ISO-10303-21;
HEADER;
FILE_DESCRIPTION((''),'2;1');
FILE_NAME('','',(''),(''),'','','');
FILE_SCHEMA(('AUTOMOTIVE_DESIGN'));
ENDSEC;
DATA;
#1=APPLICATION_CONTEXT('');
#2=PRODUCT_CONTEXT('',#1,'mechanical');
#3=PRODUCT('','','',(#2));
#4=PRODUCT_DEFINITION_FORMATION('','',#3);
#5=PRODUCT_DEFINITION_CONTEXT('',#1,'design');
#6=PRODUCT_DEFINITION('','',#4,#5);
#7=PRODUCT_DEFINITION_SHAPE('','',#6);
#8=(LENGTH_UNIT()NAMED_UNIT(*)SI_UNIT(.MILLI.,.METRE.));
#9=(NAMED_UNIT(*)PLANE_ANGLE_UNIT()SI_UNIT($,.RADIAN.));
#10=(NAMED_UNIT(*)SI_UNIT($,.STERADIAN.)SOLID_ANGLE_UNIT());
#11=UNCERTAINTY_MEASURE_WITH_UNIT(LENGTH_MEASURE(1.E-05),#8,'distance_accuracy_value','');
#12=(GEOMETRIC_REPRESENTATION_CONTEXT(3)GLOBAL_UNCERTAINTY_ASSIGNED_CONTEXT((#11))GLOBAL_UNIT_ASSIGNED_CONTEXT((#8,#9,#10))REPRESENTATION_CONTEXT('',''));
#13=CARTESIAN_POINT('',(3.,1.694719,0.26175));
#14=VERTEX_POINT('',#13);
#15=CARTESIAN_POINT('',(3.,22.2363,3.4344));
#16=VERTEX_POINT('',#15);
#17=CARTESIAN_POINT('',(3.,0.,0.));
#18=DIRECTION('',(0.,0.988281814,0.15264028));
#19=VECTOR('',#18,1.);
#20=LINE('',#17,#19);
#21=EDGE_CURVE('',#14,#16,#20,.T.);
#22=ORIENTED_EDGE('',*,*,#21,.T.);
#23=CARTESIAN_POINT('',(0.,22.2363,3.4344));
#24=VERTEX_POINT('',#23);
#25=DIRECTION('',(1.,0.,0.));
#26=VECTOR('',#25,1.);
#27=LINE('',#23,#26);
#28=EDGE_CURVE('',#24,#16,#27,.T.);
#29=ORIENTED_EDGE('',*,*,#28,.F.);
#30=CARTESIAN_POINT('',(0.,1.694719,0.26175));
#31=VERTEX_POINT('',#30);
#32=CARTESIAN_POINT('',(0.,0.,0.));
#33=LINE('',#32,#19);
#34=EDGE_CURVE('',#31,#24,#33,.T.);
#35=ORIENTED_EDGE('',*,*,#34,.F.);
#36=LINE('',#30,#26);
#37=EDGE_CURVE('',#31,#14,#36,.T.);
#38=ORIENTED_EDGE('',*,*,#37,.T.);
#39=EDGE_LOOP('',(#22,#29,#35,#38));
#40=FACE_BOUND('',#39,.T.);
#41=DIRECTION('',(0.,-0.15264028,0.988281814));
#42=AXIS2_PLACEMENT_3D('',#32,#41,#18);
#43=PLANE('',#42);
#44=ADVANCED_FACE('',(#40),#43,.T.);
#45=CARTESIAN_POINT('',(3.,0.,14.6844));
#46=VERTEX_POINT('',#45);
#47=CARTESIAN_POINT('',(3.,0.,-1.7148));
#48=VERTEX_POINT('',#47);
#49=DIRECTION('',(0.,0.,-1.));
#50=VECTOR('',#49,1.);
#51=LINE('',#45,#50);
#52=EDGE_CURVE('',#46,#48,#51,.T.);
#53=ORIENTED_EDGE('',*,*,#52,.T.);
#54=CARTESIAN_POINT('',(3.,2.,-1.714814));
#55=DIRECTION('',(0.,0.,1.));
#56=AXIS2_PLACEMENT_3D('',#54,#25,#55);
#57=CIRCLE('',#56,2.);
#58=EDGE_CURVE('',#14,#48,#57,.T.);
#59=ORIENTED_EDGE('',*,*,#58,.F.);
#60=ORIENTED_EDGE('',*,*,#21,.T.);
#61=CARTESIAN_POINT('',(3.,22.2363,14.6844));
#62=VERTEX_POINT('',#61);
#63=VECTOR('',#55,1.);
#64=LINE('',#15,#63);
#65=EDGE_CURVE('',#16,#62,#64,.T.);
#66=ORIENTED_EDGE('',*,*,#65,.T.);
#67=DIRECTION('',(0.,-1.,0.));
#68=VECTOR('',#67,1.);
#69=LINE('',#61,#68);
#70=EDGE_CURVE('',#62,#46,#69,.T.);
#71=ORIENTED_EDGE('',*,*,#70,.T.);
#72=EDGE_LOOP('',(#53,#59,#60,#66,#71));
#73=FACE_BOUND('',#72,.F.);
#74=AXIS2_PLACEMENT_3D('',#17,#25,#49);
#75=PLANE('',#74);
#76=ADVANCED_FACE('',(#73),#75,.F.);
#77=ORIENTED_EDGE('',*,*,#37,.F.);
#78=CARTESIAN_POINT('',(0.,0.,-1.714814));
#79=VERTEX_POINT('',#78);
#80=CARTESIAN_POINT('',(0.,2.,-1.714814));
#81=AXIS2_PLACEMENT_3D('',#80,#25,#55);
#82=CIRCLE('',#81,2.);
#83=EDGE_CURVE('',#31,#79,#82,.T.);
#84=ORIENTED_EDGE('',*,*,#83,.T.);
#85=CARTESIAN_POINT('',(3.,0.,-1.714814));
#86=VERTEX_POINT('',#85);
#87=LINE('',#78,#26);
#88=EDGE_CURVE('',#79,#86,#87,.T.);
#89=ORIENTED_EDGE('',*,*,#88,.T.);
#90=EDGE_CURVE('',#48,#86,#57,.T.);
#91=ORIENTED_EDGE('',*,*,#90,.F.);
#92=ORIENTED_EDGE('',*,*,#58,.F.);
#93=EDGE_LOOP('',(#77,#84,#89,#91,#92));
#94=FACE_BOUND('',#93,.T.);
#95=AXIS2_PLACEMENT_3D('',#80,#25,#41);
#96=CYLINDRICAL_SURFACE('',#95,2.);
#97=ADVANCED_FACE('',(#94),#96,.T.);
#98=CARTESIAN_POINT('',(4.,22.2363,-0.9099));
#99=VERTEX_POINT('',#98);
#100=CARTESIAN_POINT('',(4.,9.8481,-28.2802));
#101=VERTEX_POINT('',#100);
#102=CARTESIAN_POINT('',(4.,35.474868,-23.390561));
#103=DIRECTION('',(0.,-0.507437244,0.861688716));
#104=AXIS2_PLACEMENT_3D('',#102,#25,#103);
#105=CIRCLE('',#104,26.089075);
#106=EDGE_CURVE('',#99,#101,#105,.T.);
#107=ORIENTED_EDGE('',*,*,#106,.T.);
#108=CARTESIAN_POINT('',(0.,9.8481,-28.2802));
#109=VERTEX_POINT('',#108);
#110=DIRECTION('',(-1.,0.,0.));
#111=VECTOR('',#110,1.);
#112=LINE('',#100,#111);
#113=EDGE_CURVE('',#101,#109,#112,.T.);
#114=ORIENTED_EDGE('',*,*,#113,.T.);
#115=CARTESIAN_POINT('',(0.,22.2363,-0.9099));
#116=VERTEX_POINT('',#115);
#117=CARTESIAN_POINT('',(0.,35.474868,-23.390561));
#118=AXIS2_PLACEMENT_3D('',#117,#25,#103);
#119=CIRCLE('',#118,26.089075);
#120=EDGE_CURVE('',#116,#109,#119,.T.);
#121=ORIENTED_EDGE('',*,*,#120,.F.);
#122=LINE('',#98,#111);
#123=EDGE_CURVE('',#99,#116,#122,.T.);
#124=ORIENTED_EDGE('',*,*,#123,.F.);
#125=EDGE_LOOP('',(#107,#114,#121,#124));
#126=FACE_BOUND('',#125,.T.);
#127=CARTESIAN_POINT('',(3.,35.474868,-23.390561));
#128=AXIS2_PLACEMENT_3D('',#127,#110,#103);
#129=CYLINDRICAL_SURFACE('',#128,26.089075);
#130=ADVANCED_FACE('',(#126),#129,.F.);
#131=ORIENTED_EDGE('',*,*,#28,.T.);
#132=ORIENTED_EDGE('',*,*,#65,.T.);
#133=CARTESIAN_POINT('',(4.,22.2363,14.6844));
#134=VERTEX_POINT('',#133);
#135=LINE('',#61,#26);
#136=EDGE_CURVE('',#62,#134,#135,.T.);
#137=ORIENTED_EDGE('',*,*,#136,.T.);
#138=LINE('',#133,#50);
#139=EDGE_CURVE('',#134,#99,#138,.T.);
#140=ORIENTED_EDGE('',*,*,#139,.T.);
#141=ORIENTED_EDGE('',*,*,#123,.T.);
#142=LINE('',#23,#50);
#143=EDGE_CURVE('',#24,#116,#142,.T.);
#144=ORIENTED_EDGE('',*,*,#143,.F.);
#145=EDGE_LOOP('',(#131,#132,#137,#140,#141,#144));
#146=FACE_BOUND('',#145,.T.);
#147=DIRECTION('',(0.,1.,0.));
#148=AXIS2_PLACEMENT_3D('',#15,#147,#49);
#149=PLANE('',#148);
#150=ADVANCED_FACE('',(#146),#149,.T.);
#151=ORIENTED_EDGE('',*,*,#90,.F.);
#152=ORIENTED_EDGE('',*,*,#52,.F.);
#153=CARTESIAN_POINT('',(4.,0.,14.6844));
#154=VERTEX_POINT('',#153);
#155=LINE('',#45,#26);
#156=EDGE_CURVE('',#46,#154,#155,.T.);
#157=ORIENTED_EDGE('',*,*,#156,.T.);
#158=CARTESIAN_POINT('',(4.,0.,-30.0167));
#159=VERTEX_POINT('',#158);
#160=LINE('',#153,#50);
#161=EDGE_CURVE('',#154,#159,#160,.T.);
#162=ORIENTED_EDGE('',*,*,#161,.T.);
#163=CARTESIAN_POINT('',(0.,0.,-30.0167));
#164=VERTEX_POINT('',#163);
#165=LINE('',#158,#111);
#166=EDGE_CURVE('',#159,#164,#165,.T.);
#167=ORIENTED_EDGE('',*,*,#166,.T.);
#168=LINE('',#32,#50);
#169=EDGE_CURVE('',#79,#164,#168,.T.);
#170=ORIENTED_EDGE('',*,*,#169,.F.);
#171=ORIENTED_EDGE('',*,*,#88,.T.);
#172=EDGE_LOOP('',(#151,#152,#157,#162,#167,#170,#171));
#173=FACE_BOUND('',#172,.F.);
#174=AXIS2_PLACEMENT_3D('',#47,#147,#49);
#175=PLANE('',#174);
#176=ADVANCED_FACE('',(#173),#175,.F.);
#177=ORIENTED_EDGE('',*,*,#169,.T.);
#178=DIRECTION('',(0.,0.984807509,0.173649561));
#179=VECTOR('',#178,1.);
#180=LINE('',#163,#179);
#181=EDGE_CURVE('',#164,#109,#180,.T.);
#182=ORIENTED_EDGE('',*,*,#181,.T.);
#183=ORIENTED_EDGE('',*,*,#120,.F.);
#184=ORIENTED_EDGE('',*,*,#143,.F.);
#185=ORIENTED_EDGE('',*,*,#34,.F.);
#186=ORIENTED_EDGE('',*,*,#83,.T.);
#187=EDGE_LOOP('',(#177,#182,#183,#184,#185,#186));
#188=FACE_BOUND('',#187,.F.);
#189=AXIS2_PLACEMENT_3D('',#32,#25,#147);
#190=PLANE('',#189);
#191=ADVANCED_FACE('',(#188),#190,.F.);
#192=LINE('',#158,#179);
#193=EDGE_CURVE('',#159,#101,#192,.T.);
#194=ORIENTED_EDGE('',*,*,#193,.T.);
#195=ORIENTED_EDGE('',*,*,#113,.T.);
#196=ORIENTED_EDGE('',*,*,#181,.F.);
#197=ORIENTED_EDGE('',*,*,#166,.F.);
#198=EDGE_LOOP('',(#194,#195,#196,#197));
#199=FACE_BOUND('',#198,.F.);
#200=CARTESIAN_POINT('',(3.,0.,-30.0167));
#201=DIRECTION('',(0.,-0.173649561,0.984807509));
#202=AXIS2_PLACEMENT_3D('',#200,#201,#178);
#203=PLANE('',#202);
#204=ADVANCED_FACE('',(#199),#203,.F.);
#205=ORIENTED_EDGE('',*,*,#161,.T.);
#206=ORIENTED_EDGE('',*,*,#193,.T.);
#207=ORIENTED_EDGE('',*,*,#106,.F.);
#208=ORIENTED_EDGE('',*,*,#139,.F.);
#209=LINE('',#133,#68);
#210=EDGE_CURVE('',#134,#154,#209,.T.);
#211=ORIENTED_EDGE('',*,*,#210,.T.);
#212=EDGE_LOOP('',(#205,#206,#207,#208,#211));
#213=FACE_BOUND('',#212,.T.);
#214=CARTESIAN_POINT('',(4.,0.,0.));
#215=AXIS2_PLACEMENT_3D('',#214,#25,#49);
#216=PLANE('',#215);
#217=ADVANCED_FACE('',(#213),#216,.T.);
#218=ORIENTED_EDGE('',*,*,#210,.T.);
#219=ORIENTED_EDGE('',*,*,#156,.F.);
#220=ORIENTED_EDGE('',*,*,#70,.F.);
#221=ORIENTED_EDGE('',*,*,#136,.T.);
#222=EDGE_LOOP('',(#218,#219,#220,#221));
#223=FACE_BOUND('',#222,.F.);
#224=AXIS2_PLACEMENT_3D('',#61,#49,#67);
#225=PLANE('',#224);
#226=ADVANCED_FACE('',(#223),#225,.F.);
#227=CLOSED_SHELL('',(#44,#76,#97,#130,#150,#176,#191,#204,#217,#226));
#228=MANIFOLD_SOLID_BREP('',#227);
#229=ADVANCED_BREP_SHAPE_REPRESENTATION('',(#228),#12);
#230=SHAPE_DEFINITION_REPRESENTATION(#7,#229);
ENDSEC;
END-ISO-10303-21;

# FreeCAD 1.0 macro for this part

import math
import FreeCAD as App
import Part
import Sketcher
from FreeCAD import Vector
Q = App.Units.Quantity


def edges_at(feature, points):
    """Names of the edges that pass closest to the given points."""
    edges = feature.Shape.Edges
    near = lambda p: min(range(len(edges)), key=lambda i: edges[i].distToShape(Part.Vertex(*p))[0])
    return sorted({f"Edge{near(p) + 1}" for p in points})

doc = App.newDocument("Part")
body = doc.addObject("PartDesign::Body", "Body")

# Sketch on YZ plane
sketch1 = body.newObject("Sketcher::SketchObject", "Sketch")
sketch1.AttachmentSupport = (doc.getObject("YZ_Plane"), [""])
sketch1.MapMode = "FlatFace"
sketch1.addGeometry(Part.LineSegment(Vector(22.2363, 3.4344, 0), Vector(0, 0, 0)), False)
sketch1.addGeometry(Part.LineSegment(Vector(0, 0, 0), Vector(0, -30.0167, 0)), False)
sketch1.addGeometry(Part.LineSegment(Vector(0, -30.0167, 0), Vector(9.8481, -28.2802, 0)), False)
sketch1.addGeometry(Part.ArcOfCircle(Part.Circle(Vector(35.4748, -23.3905, 0), Vector(0, 0, 1), 26.088987), math.radians(120.493215), math.radians(190.802471)), False)
sketch1.addGeometry(Part.LineSegment(Vector(22.2363, -0.9099, 0), Vector(22.2363, 3.4344, 0)), False)
sketch1.addConstraint(Sketcher.Constraint("Coincident", 0, 2, 1, 1))
sketch1.addConstraint(Sketcher.Constraint("Coincident", 1, 2, 2, 1))
sketch1.addConstraint(Sketcher.Constraint("Coincident", 2, 2, 3, 2))
sketch1.addConstraint(Sketcher.Constraint("Coincident", 3, 1, 4, 1))
sketch1.addConstraint(Sketcher.Constraint("Coincident", 4, 2, 0, 1))
sketch1.addConstraint(Sketcher.Constraint("Vertical", 1))
sketch1.addConstraint(Sketcher.Constraint("Vertical", 4))
sketch1.addConstraint(Sketcher.Constraint("Coincident", 0, 2, -1, 1))
sketch1.addConstraint(Sketcher.Constraint("Radius", 3, Q("26.089 mm")))
sketch1.addConstraint(Sketcher.Constraint("Distance", 0, Q("22.5 mm")))
sketch1.addConstraint(Sketcher.Constraint("Angle", 2, Q("10 deg")))
sketch1.addConstraint(Sketcher.Constraint("Distance", 2, Q("10 mm")))
sketch1.addConstraint(Sketcher.Constraint("DistanceY", 1, 2, 1, 1, Q("30.0167 mm")))
sketch1.addConstraint(Sketcher.Constraint("Angle", 0, Q("-171.22 deg")))
sketch1.addConstraint(Sketcher.Constraint("DistanceX", 3, 1, 3, 3, Q("13.2385 mm")))
pad1 = body.newObject("PartDesign::Pad", "Pad")
pad1.Profile = sketch1
pad1.Length = 3
doc.recompute()

fillet = body.newObject("PartDesign::Fillet", "Fillet")
fillet.Base = (pad1, edges_at(pad1, [(1.5, 0, 0)]))
fillet.Radius = 2

# Sketch on YZ plane
sketch2 = body.newObject("Sketcher::SketchObject", "Sketch001")
sketch2.AttachmentSupport = (doc.getObject("YZ_Plane"), [""])
sketch2.MapMode = "FlatFace"
sketch2.AttachmentOffset = App.Placement(Vector(0, 0, 3), App.Rotation())
sketch2.addGeometry(Part.LineSegment(Vector(22.2363, -0.9099, 0), Vector(22.2363, 14.6844, 0)), False)
sketch2.addGeometry(Part.LineSegment(Vector(22.2363, 14.6844, 0), Vector(0, 14.6844, 0)), False)
sketch2.addGeometry(Part.LineSegment(Vector(0, 14.6844, 0), Vector(0, -30.0167, 0)), False)
sketch2.addGeometry(Part.LineSegment(Vector(0, -30.0167, 0), Vector(9.8481, -28.2802, 0)), False)
sketch2.addGeometry(Part.ArcOfCircle(Part.Circle(Vector(35.4748, -23.3905, 0), Vector(0, 0, 1), 26.088987), math.radians(120.493215), math.radians(190.802471)), False)
sketch2.addConstraint(Sketcher.Constraint("Coincident", 0, 2, 1, 1))
sketch2.addConstraint(Sketcher.Constraint("Coincident", 1, 2, 2, 1))
sketch2.addConstraint(Sketcher.Constraint("Coincident", 2, 2, 3, 1))
sketch2.addConstraint(Sketcher.Constraint("Coincident", 3, 2, 4, 2))
sketch2.addConstraint(Sketcher.Constraint("Coincident", 4, 1, 0, 1))
sketch2.addConstraint(Sketcher.Constraint("Vertical", 0))
sketch2.addConstraint(Sketcher.Constraint("Horizontal", 1))
sketch2.addConstraint(Sketcher.Constraint("Vertical", 2))
sketch2.addConstraint(Sketcher.Constraint("PointOnObject", 1, 2, -2))
sketch2.addConstraint(Sketcher.Constraint("Angle", 3, Q("10 deg")))
sketch2.addConstraint(Sketcher.Constraint("Distance", 3, Q("10 mm")))
sketch2.addConstraint(Sketcher.Constraint("Radius", 4, Q("26.089 mm")))
sketch2.addConstraint(Sketcher.Constraint("DistanceY", 2, 2, 2, 1, Q("44.701 mm")))
sketch2.addConstraint(Sketcher.Constraint("DistanceY", 4, 1, -1, 1, Q("0.91 mm")))
sketch2.addConstraint(Sketcher.Constraint("DistanceX", 1, 2, 1, 1, Q("22.2363 mm")))
sketch2.addConstraint(Sketcher.Constraint("DistanceY", 0, 1, 0, 2, Q("15.5943 mm")))
pad2 = body.newObject("PartDesign::Pad", "Pad001")
pad2.Profile = sketch2
pad2.Length = 1

doc.recompute()
